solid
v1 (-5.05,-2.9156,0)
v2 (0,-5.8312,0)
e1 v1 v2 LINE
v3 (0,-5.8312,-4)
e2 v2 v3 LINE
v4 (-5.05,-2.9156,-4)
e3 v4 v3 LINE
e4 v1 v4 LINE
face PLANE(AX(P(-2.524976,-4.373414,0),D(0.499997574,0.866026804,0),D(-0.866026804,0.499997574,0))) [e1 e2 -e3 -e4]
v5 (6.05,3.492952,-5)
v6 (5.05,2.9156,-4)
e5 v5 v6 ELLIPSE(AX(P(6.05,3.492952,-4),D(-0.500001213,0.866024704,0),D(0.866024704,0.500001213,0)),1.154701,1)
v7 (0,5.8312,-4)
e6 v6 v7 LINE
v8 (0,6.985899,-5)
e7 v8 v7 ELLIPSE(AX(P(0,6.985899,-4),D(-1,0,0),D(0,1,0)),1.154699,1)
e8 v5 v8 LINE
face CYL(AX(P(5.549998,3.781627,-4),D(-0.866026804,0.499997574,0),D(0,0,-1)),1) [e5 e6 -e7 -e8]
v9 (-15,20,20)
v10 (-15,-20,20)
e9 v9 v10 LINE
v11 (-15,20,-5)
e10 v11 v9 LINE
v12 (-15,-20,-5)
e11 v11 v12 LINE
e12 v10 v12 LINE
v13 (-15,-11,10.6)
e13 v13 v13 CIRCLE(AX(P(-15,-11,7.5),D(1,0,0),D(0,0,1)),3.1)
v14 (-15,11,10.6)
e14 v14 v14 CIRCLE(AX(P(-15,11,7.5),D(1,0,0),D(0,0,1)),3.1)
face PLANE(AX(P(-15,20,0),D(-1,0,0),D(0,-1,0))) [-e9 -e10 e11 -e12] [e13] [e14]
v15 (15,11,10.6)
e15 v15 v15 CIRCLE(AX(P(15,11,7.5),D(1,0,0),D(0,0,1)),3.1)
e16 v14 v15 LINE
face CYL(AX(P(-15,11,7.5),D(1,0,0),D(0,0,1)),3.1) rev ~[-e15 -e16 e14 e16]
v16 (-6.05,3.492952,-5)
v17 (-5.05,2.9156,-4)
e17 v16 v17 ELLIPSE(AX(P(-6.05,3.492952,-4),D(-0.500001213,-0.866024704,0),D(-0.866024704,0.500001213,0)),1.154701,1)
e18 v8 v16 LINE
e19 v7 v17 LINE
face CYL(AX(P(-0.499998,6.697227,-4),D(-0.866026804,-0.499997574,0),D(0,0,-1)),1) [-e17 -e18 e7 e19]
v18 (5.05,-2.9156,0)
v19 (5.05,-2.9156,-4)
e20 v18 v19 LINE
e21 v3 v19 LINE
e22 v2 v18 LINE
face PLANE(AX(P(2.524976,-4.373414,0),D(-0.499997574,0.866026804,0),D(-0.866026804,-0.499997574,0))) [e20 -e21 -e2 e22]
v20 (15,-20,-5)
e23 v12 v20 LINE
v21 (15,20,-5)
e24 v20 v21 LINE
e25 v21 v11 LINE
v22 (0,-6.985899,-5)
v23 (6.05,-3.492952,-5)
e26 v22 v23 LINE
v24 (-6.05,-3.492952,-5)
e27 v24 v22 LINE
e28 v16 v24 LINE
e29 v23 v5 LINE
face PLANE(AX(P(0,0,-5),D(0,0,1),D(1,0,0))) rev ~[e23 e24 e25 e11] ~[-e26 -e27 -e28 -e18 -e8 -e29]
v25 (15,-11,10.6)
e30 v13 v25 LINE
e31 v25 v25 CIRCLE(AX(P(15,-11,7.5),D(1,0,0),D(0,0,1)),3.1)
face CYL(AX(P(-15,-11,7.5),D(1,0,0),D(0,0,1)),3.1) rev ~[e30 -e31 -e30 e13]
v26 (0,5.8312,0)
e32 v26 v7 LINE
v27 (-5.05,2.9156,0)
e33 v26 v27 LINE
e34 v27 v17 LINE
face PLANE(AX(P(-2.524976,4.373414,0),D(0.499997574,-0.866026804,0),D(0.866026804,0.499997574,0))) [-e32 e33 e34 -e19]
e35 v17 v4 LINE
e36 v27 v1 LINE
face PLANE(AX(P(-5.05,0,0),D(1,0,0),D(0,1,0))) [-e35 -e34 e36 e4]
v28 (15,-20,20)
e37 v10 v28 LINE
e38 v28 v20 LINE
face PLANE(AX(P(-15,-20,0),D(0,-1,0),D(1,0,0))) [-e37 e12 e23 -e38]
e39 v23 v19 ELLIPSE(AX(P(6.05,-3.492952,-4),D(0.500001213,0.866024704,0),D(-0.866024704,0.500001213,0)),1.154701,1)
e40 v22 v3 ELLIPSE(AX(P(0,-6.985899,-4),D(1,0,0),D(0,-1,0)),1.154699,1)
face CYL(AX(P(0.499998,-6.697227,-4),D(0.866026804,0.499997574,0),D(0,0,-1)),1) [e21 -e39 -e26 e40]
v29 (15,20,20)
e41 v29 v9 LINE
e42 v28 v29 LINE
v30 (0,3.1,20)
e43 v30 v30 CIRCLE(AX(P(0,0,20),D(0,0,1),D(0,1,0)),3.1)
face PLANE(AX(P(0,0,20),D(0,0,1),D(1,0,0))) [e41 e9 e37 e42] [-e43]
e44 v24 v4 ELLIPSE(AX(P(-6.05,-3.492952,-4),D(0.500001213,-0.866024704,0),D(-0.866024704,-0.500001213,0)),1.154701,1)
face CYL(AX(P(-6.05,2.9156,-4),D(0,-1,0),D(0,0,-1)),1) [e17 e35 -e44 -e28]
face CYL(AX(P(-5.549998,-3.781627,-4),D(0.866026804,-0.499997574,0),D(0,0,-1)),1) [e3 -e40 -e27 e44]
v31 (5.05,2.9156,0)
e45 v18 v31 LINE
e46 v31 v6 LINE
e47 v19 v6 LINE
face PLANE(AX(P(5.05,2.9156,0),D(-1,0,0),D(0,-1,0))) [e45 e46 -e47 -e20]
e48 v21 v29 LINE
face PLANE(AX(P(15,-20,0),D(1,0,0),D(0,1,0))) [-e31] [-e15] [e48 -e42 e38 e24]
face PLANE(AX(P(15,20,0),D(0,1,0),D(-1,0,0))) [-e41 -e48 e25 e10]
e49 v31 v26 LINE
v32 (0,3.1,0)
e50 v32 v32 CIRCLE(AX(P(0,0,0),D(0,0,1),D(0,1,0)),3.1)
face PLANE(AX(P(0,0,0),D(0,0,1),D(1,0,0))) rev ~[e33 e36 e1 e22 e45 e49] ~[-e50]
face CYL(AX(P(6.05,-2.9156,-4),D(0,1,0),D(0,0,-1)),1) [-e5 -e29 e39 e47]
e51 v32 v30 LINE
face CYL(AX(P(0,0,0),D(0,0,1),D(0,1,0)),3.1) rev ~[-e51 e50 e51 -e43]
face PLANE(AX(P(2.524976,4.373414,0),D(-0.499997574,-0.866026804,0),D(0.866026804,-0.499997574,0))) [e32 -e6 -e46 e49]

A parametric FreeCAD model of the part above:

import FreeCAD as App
import Part
import Sketcher

V = App.Vector
Q = App.Units.Quantity


def edges_at(feature, points):
    """Names of the edges that pass closest to the given points."""
    edges = feature.Shape.Edges
    near = lambda p: min(range(len(edges)), key=lambda i: edges[i].distToShape(Part.Vertex(*p))[0])
    return sorted({f"Edge{near(p) + 1}" for p in points})

doc = App.newDocument("Part")
body = doc.addObject("PartDesign::Body", "Body")

# Sketch on XY plane
sketch1 = body.newObject("Sketcher::SketchObject", "Sketch")
sketch1.AttachmentSupport = (doc.getObject("XY_Plane"), [""])
sketch1.MapMode = "FlatFace"
sketch1.addGeometry(Part.LineSegment(V(15, -20, 0), V(15, 20, 0)), False)
sketch1.addGeometry(Part.LineSegment(V(15, 20, 0), V(-15, 20, 0)), False)
sketch1.addGeometry(Part.LineSegment(V(-15, 20, 0), V(-15, -20, 0)), False)
sketch1.addGeometry(Part.LineSegment(V(-15, -20, 0), V(15, -20, 0)), False)
sketch1.addGeometry(Part.Circle(V(0, 0, 0), V(0, 0, 1), 3), False)
sketch1.addConstraint(Sketcher.Constraint("Coincident", 0, 2, 1, 1))
sketch1.addConstraint(Sketcher.Constraint("Coincident", 1, 2, 2, 1))
sketch1.addConstraint(Sketcher.Constraint("Coincident", 2, 2, 3, 1))
sketch1.addConstraint(Sketcher.Constraint("Coincident", 3, 2, 0, 1))
sketch1.addConstraint(Sketcher.Constraint("Vertical", 0))
sketch1.addConstraint(Sketcher.Constraint("Horizontal", 1))
sketch1.addConstraint(Sketcher.Constraint("Vertical", 2))
sketch1.addConstraint(Sketcher.Constraint("Horizontal", 3))
sketch1.addConstraint(Sketcher.Constraint("Coincident", 4, 3, -1, 1))
sketch1.addConstraint(Sketcher.Constraint("Symmetric", 0, 2, 2, 2, -1, 1))
sketch1.addConstraint(Sketcher.Constraint("Diameter", 4, Q("6 mm")))
sketch1.addConstraint(Sketcher.Constraint("DistanceX", 1, 2, 1, 1, Q("30 mm")))
sketch1.addConstraint(Sketcher.Constraint("DistanceY", 0, 1, 0, 2, Q("40 mm")))
pad1 = body.newObject("PartDesign::Pad", "Pad")
pad1.Profile = sketch1
pad1.Length = 20

# Sketch on XY plane
sketch2 = body.newObject("Sketcher::SketchObject", "Sketch001")
sketch2.AttachmentSupport = (doc.getObject("XY_Plane"), [""])
sketch2.MapMode = "FlatFace"
sketch2.addGeometry(Part.LineSegment(V(15, -20, 0), V(15, 20, 0)), False)
sketch2.addGeometry(Part.LineSegment(V(15, 20, 0), V(-15, 20, 0)), False)
sketch2.addGeometry(Part.LineSegment(V(-15, 20, 0), V(-15, -20, 0)), False)
sketch2.addGeometry(Part.LineSegment(V(-15, -20, 0), V(15, -20, 0)), False)
sketch2.addGeometry(Part.LineSegment(V(5, 3, 0), V(5, -3, 0)), False)
sketch2.addGeometry(Part.LineSegment(V(5, -3, 0), V(0, -6, 0)), False)
sketch2.addGeometry(Part.LineSegment(V(0, -6, 0), V(-5, -3, 0)), False)
sketch2.addGeometry(Part.LineSegment(V(-5, -3, 0), V(-5, 3, 0)), False)
sketch2.addGeometry(Part.LineSegment(V(-5, 3, 0), V(0, 6, 0)), False)
sketch2.addGeometry(Part.LineSegment(V(0, 6, 0), V(5, 3, 0)), False)
sketch2.addConstraint(Sketcher.Constraint("Coincident", 0, 2, 1, 1))
sketch2.addConstraint(Sketcher.Constraint("Coincident", 1, 2, 2, 1))
sketch2.addConstraint(Sketcher.Constraint("Coincident", 2, 2, 3, 1))
sketch2.addConstraint(Sketcher.Constraint("Coincident", 3, 2, 0, 1))
sketch2.addConstraint(Sketcher.Constraint("Coincident", 4, 2, 5, 1))
sketch2.addConstraint(Sketcher.Constraint("Coincident", 5, 2, 6, 1))
sketch2.addConstraint(Sketcher.Constraint("Coincident", 6, 2, 7, 1))
sketch2.addConstraint(Sketcher.Constraint("Coincident", 7, 2, 8, 1))
sketch2.addConstraint(Sketcher.Constraint("Coincident", 8, 2, 9, 1))
sketch2.addConstraint(Sketcher.Constraint("Coincident", 9, 2, 4, 1))
sketch2.addConstraint(Sketcher.Constraint("Vertical", 0))
sketch2.addConstraint(Sketcher.Constraint("Horizontal", 1))
sketch2.addConstraint(Sketcher.Constraint("Vertical", 2))
sketch2.addConstraint(Sketcher.Constraint("Horizontal", 3))
sketch2.addConstraint(Sketcher.Constraint("Vertical", 4))
sketch2.addConstraint(Sketcher.Constraint("Vertical", 7))
sketch2.addConstraint(Sketcher.Constraint("Symmetric", 0, 2, 2, 2, -1, 1))
sketch2.addConstraint(Sketcher.Constraint("Symmetric", 4, 2, 7, 2, -1, 1))
sketch2.addConstraint(Sketcher.Constraint("Symmetric", 5, 2, 8, 2, -1, 1))
sketch2.addConstraint(Sketcher.Constraint("PointOnObject", 5, 2, -2))
sketch2.addConstraint(Sketcher.Constraint("Parallel", 6, 9))
sketch2.addConstraint(Sketcher.Constraint("Horizontal", 4, 2, 6, 2))
sketch2.addConstraint(Sketcher.Constraint("DistanceX", 1, 2, 1, 1, Q("30 mm")))
sketch2.addConstraint(Sketcher.Constraint("DistanceY", 0, 1, 0, 2, Q("40 mm")))
sketch2.addConstraint(Sketcher.Constraint("Angle", 8, Q("29.9998 deg")))
sketch2.addConstraint(Sketcher.Constraint("DistanceX", 6, 2, 4, 2, Q("10.1 mm")))
sketch2.addConstraint(Sketcher.Constraint("DistanceY", 4, 2, 4, 1, Q("5.8312 mm")))
pad2 = body.newObject("PartDesign::Pad", "Pad001")
pad2.Profile = sketch2
pad2.Length = 5
pad2.Reversed = True
doc.recompute()

fillet = body.newObject("PartDesign::Fillet", "Fillet")
fillet.Base = (pad2, edges_at(pad2, [
    (5.05, 0, -5),
    (2.525, 4.373, -5),
    (-2.525, 4.373, -5),
    (-5.05, 0, -5),
    (-2.525, -4.373, -5),
    (2.525, -4.373, -5),
]))
fillet.Radius = 1

# Sketch on YZ plane
sketch3 = body.newObject("Sketcher::SketchObject", "Sketch002")
sketch3.AttachmentSupport = (doc.getObject("YZ_Plane"), [""])
sketch3.MapMode = "FlatFace"
sketch3.AttachmentOffset = App.Placement(V(0, 0, -15), App.Rotation())
sketch3.addGeometry(Part.Circle(V(11, 7.5, 0), V(0, 0, 1), 3), False)
sketch3.addGeometry(Part.Circle(V(-11, 7.5, 0), V(0, 0, 1), 3), False)
sketch3.addConstraint(Sketcher.Constraint("Equal", 0, 1))
sketch3.addConstraint(Sketcher.Constraint("Symmetric", 0, 3, 1, 3, -2))
sketch3.addConstraint(Sketcher.Constraint("Diameter", 0, Q("6 mm")))
sketch3.addConstraint(Sketcher.Constraint("DistanceX", -1, 1, 0, 3, Q("11 mm")))
sketch3.addConstraint(Sketcher.Constraint("DistanceY", -1, 1, 0, 3, Q("7.5 mm")))
pocket1 = body.newObject("PartDesign::Pocket", "Pocket")
pocket1.Profile = sketch3
pocket1.Type = "ThroughAll"
pocket1.Reversed = True

# Sketch on YZ plane
sketch4 = body.newObject("Sketcher::SketchObject", "Sketch003")
sketch4.AttachmentSupport = (doc.getObject("YZ_Plane"), [""])
sketch4.MapMode = "FlatFace"
sketch4.AttachmentOffset = App.Placement(V(0, 0, -15), App.Rotation())
sketch4.addGeometry(Part.Circle(V(-11, 7.5, 0), V(0, 0, 1), 3.1), False)
sketch4.addGeometry(Part.Circle(V(11, 7.5, 0), V(0, 0, 1), 3.1), False)
sketch4.addConstraint(Sketcher.Constraint("Equal", 0, 1))
sketch4.addConstraint(Sketcher.Constraint("Symmetric", 0, 3, 1, 3, -2))
sketch4.addConstraint(Sketcher.Constraint("Diameter", 0, Q("6.2 mm")))
sketch4.addConstraint(Sketcher.Constraint("DistanceX", 0, 3, -1, 1, Q("11 mm")))
sketch4.addConstraint(Sketcher.Constraint("DistanceY", -1, 1, 0, 3, Q("7.5 mm")))
doc.recompute()
hole = body.newObject("PartDesign::Hole", "Hole")
hole.Profile = sketch4
hole.ThreadType = "None"
hole.Diameter = 6.2
hole.DepthType = "ThroughAll"
hole.Reversed = True

# Sketch on XY plane
sketch5 = body.newObject("Sketcher::SketchObject", "Sketch004")
sketch5.AttachmentSupport = (doc.getObject("XY_Plane"), [""])
sketch5.MapMode = "FlatFace"
sketch5.addGeometry(Part.Circle(V(0, 0, 0), V(0, 0, 1), 3.1), False)
sketch5.addConstraint(Sketcher.Constraint("Coincident", 0, 3, -1, 1))
sketch5.addConstraint(Sketcher.Constraint("Diameter", 0, Q("6.2 mm")))
doc.recompute()
hole2 = body.newObject("PartDesign::Hole", "Hole001")
hole2.Profile = sketch5
hole2.ThreadType = "None"
hole2.Diameter = 6.2
hole2.DepthType = "ThroughAll"

# Sketch on XY plane
sketch6 = body.newObject("Sketcher::SketchObject", "Sketch005")
sketch6.AttachmentSupport = (doc.getObject("XY_Plane"), [""])
sketch6.MapMode = "FlatFace"
sketch6.addGeometry(Part.Circle(V(0, 0, 0), V(0, 0, 1), 3.1), False)
sketch6.addConstraint(Sketcher.Constraint("Coincident", 0, 3, -1, 1))
sketch6.addConstraint(Sketcher.Constraint("Diameter", 0, Q("6.2 mm")))
doc.recompute()
hole3 = body.newObject("PartDesign::Hole", "Hole002")
hole3.Profile = sketch6
hole3.ThreadType = "None"
hole3.Diameter = 6.2
hole3.DepthType = "ThroughAll"
hole3.Reversed = True

doc.recompute()
